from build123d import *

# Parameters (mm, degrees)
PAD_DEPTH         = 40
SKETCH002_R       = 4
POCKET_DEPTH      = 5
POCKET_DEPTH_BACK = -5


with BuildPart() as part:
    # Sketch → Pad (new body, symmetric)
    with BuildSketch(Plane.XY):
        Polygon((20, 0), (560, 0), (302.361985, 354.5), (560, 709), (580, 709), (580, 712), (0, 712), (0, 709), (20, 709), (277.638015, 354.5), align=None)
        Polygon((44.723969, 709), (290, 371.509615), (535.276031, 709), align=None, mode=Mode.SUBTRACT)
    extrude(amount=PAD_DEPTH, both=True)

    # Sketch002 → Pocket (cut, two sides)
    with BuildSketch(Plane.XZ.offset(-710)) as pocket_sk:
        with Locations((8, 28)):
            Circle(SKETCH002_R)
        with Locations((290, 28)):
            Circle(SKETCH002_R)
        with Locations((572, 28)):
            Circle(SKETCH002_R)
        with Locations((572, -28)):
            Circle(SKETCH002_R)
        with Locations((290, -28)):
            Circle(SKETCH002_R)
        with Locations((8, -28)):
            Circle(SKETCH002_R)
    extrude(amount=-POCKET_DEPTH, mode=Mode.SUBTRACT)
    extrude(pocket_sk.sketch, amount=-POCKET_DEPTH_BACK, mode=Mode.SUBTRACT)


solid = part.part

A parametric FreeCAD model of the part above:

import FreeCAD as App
import Part
import Sketcher
Q = App.Units.Quantity

doc = App.newDocument("Part")
body = doc.addObject("PartDesign::Body", "Body")

# Sketch on XY plane
sketch1 = body.newObject("Sketcher::SketchObject", "Sketch")
sketch1.AttachmentSupport = (doc.getObject("XY_Plane"), [""])
sketch1.MapMode = "FlatFace"
sketch1.addGeometry(Part.LineSegment(App.Vector(20, 0, 0), App.Vector(560, 0, 0)), False)
sketch1.addGeometry(Part.LineSegment(App.Vector(560, 0, 0), App.Vector(302.361985, 354.5, 0)), False)
sketch1.addGeometry(Part.LineSegment(App.Vector(302.361985, 354.5, 0), App.Vector(560, 709, 0)), False)
sketch1.addGeometry(Part.LineSegment(App.Vector(560, 709, 0), App.Vector(580, 709, 0)), False)
sketch1.addGeometry(Part.LineSegment(App.Vector(580, 709, 0), App.Vector(580, 712, 0)), False)
sketch1.addGeometry(Part.LineSegment(App.Vector(580, 712, 0), App.Vector(0, 712, 0)), False)
sketch1.addGeometry(Part.LineSegment(App.Vector(0, 712, 0), App.Vector(0, 709, 0)), False)
sketch1.addGeometry(Part.LineSegment(App.Vector(0, 709, 0), App.Vector(20, 709, 0)), False)
sketch1.addGeometry(Part.LineSegment(App.Vector(20, 709, 0), App.Vector(277.638015, 354.5, 0)), False)
sketch1.addGeometry(Part.LineSegment(App.Vector(277.638015, 354.5, 0), App.Vector(20, 0, 0)), False)
sketch1.addGeometry(Part.LineSegment(App.Vector(290, 371.509615, 0), App.Vector(44.723969, 709, 0)), False)
sketch1.addGeometry(Part.LineSegment(App.Vector(44.723969, 709, 0), App.Vector(535.276031, 709, 0)), False)
sketch1.addGeometry(Part.LineSegment(App.Vector(535.276031, 709, 0), App.Vector(290, 371.509615, 0)), False)
sketch1.addConstraint(Sketcher.Constraint("Coincident", 0, 2, 1, 1))
sketch1.addConstraint(Sketcher.Constraint("Coincident", 1, 2, 2, 1))
sketch1.addConstraint(Sketcher.Constraint("Coincident", 2, 2, 3, 1))
sketch1.addConstraint(Sketcher.Constraint("Coincident", 3, 2, 4, 1))
sketch1.addConstraint(Sketcher.Constraint("Coincident", 4, 2, 5, 1))
sketch1.addConstraint(Sketcher.Constraint("Coincident", 5, 2, 6, 1))
sketch1.addConstraint(Sketcher.Constraint("Coincident", 6, 2, 7, 1))
sketch1.addConstraint(Sketcher.Constraint("Coincident", 7, 2, 8, 1))
sketch1.addConstraint(Sketcher.Constraint("Coincident", 8, 2, 9, 1))
sketch1.addConstraint(Sketcher.Constraint("Coincident", 9, 2, 0, 1))
sketch1.addConstraint(Sketcher.Constraint("Coincident", 10, 2, 11, 1))
sketch1.addConstraint(Sketcher.Constraint("Coincident", 11, 2, 12, 1))
sketch1.addConstraint(Sketcher.Constraint("Coincident", 12, 2, 10, 1))
sketch1.addConstraint(Sketcher.Constraint("Horizontal", 0))
sketch1.addConstraint(Sketcher.Constraint("Horizontal", 3))
sketch1.addConstraint(Sketcher.Constraint("Vertical", 4))
sketch1.addConstraint(Sketcher.Constraint("Horizontal", 5))
sketch1.addConstraint(Sketcher.Constraint("Vertical", 6))
sketch1.addConstraint(Sketcher.Constraint("Horizontal", 7))
sketch1.addConstraint(Sketcher.Constraint("Horizontal", 11))
sketch1.addConstraint(Sketcher.Constraint("PointOnObject", 0, 2, -1))
sketch1.addConstraint(Sketcher.Constraint("PointOnObject", 5, 2, -2))
sketch1.addConstraint(Sketcher.Constraint("Parallel", 1, 8))
sketch1.addConstraint(Sketcher.Constraint("Parallel", 2, 9))
sketch1.addConstraint(Sketcher.Constraint("Parallel", 8, 10))
sketch1.addConstraint(Sketcher.Constraint("Parallel", 9, 12))
sketch1.addConstraint(Sketcher.Constraint("Horizontal", 3, 2, 6, 2))
sketch1.addConstraint(Sketcher.Constraint("Horizontal", 1, 2, 8, 2))
sketch1.addConstraint(Sketcher.Constraint("Horizontal", 7, 2, 10, 2))
sketch1.addConstraint(Sketcher.Constraint("Vertical", 0, 2, 2, 2))
sketch1.addConstraint(Sketcher.Constraint("Vertical", 7, 2, 9, 2))
sketch1.addConstraint(Sketcher.Constraint("Equal", 3, 7))
sketch1.addConstraint(Sketcher.Constraint("DistanceX", 0, 1, 0, 2, Q("540 mm")))
sketch1.addConstraint(Sketcher.Constraint("DistanceX", 3, 1, 3, 2, Q("20 mm")))
sketch1.addConstraint(Sketcher.Constraint("DistanceY", 4, 1, 4, 2, Q("3 mm")))
sketch1.addConstraint(Sketcher.Constraint("DistanceY", -1, 1, 2, 2, Q("709 mm")))
sketch1.addConstraint(Sketcher.Constraint("DistanceX", -1, 1, 12, 2, Q("290 mm")))
sketch1.addConstraint(Sketcher.Constraint("DistanceX", 11, 1, 11, 2, Q("490.552062 mm")))
sketch1.addConstraint(Sketcher.Constraint("DistanceX", 8, 2, 1, 2, Q("24.72397 mm")))
pad1 = body.newObject("PartDesign::Pad", "Pad")
pad1.Profile = sketch1
pad1.Length = 80
pad1.Midplane = True

# Sketch on XZ plane
sketch2 = body.newObject("Sketcher::SketchObject", "Sketch001")
sketch2.AttachmentSupport = (doc.getObject("XZ_Plane"), [""])
sketch2.MapMode = "FlatFace"
sketch2.AttachmentOffset = App.Placement(App.Vector(0, 0, -710), App.Rotation())
sketch2.addGeometry(Part.Circle(App.Vector(8, 28, 0), App.Vector(0, 0, 1), 4), False)
sketch2.addGeometry(Part.Circle(App.Vector(290, 28, 0), App.Vector(0, 0, 1), 4), False)
sketch2.addGeometry(Part.Circle(App.Vector(572, 28, 0), App.Vector(0, 0, 1), 4), False)
sketch2.addGeometry(Part.Circle(App.Vector(572, -28, 0), App.Vector(0, 0, 1), 4), False)
sketch2.addGeometry(Part.Circle(App.Vector(290, -28, 0), App.Vector(0, 0, 1), 4), False)
sketch2.addGeometry(Part.Circle(App.Vector(8, -28, 0), App.Vector(0, 0, 1), 4), False)
sketch2.addConstraint(Sketcher.Constraint("Equal", 0, 1))
sketch2.addConstraint(Sketcher.Constraint("Equal", 1, 2))
sketch2.addConstraint(Sketcher.Constraint("Equal", 2, 3))
sketch2.addConstraint(Sketcher.Constraint("Equal", 3, 4))
sketch2.addConstraint(Sketcher.Constraint("Equal", 4, 5))
sketch2.addConstraint(Sketcher.Constraint("Symmetric", 2, 3, 3, 3, -1))
sketch2.addConstraint(Sketcher.Constraint("Symmetric", 1, 3, 4, 3, -1))
sketch2.addConstraint(Sketcher.Constraint("Symmetric", 0, 3, 5, 3, -1))
sketch2.addConstraint(Sketcher.Constraint("Horizontal", 0, 3, 1, 3))
sketch2.addConstraint(Sketcher.Constraint("Horizontal", 1, 3, 2, 3))
sketch2.addConstraint(Sketcher.Constraint("Diameter", 0, Q("8 mm")))
sketch2.addConstraint(Sketcher.Constraint("DistanceX", -1, 1, 0, 3, Q("8 mm")))
sketch2.addConstraint(Sketcher.Constraint("DistanceY", -1, 1, 0, 3, Q("28 mm")))
sketch2.addConstraint(Sketcher.Constraint("DistanceX", -1, 1, 1, 3, Q("290 mm")))
sketch2.addConstraint(Sketcher.Constraint("DistanceX", -1, 1, 2, 3, Q("572 mm")))
pocket1 = body.newObject("PartDesign::Pocket", "Pocket")
pocket1.Profile = sketch2
pocket1.Type = "TwoLengths"
pocket1.Length = 5
pocket1.Length2 = 5

doc.recompute()
